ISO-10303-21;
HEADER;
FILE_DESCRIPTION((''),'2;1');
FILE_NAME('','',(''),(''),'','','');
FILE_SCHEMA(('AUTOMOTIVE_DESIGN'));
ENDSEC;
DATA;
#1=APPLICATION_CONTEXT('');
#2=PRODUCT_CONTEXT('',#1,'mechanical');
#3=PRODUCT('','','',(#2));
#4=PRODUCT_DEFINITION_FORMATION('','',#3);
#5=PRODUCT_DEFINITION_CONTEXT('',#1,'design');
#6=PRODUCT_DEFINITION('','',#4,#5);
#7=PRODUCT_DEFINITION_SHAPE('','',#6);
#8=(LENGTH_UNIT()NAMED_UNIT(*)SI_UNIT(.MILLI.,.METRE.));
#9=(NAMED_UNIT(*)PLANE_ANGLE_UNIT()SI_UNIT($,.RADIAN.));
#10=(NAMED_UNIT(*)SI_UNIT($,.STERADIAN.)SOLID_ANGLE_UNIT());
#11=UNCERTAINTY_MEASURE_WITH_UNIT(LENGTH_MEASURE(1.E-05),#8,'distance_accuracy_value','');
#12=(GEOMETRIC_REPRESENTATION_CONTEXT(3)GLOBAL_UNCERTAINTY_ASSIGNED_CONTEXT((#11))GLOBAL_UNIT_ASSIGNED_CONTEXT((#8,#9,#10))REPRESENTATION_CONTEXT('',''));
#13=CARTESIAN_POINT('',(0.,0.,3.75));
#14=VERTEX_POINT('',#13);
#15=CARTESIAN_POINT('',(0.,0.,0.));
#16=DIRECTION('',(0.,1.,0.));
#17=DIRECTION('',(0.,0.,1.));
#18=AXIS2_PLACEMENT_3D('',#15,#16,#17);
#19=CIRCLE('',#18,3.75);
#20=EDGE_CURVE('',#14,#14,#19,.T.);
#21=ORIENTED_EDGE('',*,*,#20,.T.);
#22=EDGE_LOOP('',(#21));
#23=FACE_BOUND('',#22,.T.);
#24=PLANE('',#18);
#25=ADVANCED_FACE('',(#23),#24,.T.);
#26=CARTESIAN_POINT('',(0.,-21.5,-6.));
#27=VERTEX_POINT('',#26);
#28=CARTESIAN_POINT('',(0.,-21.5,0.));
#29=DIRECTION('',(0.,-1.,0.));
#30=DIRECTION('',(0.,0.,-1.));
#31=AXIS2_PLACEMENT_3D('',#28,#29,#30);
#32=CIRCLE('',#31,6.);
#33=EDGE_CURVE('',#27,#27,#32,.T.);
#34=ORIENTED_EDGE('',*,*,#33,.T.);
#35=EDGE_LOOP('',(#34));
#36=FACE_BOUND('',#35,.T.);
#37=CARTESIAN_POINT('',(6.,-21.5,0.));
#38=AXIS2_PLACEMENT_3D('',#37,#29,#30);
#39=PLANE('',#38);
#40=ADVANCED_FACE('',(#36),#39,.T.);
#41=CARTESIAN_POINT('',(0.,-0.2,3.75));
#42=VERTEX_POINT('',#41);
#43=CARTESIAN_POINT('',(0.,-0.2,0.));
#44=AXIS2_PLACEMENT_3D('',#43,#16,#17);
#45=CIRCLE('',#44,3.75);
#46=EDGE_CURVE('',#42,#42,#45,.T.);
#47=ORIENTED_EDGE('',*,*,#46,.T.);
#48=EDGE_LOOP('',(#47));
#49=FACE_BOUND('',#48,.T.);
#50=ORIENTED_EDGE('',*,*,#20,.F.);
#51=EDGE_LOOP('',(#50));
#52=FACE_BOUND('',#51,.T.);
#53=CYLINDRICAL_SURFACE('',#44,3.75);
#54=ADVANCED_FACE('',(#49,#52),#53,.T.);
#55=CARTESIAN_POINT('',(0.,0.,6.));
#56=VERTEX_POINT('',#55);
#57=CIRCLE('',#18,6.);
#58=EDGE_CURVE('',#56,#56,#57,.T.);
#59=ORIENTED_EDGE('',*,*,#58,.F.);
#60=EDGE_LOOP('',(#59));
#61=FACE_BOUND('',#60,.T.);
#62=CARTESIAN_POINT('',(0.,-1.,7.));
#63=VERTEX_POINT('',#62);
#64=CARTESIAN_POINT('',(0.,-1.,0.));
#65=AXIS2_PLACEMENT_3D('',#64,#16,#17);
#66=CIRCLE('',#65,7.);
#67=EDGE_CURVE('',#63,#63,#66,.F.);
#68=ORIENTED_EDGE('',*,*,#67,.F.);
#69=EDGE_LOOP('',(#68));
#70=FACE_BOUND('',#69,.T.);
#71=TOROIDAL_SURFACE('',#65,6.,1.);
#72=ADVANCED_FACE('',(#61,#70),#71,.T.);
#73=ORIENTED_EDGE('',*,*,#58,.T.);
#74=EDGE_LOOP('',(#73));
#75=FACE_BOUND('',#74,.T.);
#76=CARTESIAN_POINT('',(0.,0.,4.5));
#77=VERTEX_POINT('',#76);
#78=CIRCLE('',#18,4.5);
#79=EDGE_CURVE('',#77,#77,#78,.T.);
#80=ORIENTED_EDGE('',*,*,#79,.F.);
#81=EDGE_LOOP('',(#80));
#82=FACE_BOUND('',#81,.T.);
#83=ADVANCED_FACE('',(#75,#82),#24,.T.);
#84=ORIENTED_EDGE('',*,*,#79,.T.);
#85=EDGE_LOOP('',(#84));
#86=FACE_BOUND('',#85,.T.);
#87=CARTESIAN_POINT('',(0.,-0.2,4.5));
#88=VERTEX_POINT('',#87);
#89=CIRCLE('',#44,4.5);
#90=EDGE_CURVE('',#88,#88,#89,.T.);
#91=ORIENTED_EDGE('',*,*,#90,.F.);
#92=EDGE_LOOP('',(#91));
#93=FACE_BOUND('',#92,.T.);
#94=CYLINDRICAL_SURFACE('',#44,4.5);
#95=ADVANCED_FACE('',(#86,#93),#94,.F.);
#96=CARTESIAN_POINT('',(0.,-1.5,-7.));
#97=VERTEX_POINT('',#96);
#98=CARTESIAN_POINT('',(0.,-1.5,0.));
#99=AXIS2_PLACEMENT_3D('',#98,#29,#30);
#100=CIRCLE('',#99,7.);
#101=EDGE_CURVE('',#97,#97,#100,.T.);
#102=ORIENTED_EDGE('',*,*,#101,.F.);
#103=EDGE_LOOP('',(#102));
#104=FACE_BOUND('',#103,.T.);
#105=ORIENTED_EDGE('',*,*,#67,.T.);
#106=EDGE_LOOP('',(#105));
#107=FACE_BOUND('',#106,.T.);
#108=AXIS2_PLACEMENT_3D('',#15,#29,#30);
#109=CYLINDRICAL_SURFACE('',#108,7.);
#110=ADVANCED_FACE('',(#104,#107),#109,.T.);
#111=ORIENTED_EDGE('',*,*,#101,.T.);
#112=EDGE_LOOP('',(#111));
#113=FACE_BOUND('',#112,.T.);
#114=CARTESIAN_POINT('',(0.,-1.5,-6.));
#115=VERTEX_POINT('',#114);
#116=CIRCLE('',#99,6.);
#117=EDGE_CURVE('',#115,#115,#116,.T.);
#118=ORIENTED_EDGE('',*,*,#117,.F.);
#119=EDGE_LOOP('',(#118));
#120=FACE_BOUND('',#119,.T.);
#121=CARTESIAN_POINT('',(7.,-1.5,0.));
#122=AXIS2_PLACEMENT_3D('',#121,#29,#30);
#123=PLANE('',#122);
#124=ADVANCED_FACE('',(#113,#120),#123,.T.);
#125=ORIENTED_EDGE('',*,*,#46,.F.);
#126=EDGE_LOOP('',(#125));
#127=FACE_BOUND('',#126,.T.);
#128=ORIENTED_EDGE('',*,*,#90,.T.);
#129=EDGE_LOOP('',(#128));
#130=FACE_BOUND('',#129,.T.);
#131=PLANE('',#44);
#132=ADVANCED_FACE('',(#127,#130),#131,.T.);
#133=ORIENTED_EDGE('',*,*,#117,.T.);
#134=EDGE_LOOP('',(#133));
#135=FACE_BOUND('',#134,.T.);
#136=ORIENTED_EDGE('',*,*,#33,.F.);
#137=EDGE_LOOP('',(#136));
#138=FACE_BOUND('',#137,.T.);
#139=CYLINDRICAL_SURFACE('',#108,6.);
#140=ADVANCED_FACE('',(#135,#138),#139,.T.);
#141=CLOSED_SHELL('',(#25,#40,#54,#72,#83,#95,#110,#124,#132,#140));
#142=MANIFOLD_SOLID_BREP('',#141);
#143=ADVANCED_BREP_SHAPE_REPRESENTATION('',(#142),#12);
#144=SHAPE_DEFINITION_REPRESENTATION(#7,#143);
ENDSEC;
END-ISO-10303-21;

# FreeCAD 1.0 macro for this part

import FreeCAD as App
import Part
import Sketcher
from FreeCAD import Vector
Q = App.Units.Quantity


def edges_at(feature, points):
    """Names of the edges that pass closest to the given points."""
    edges = feature.Shape.Edges
    near = lambda p: min(range(len(edges)), key=lambda i: edges[i].distToShape(Part.Vertex(*p))[0])
    return sorted({f"Edge{near(p) + 1}" for p in points})

doc = App.newDocument("Part")
body = doc.addObject("PartDesign::Body", "Body")

# Sketch on XY plane
sketch1 = body.newObject("Sketcher::SketchObject", "Sketch")
sketch1.AttachmentSupport = (doc.getObject("XY_Plane"), [""])
sketch1.MapMode = "FlatFace"
sketch1.addGeometry([
    Part.LineSegment(Vector(7, 0, 0), Vector(0, 0, 0)),  # 0
    Part.LineSegment(Vector(0, 0, 0), Vector(0, -21.5, 0)),  # 1
    Part.LineSegment(Vector(0, -21.5, 0), Vector(6, -21.5, 0)),  # 2
    Part.LineSegment(Vector(6, -21.5, 0), Vector(6, -1.5, 0)),  # 3
    Part.LineSegment(Vector(6, -1.5, 0), Vector(7, -1.5, 0)),  # 4
    Part.LineSegment(Vector(7, -1.5, 0), Vector(7, 0, 0)),  # 5
], False)
sketch1.addConstraint([
    Sketcher.Constraint("Coincident", 0, 2, 1, 1),
    Sketcher.Constraint("Coincident", 1, 2, 2, 1),
    Sketcher.Constraint("Coincident", 2, 2, 3, 1),
    Sketcher.Constraint("Coincident", 3, 2, 4, 1),
    Sketcher.Constraint("Coincident", 4, 2, 5, 1),
    Sketcher.Constraint("Coincident", 5, 2, 0, 1),
    Sketcher.Constraint("Horizontal", 0),
    Sketcher.Constraint("Vertical", 1),
    Sketcher.Constraint("Horizontal", 2),
    Sketcher.Constraint("Vertical", 3),
    Sketcher.Constraint("Horizontal", 4),
    Sketcher.Constraint("Vertical", 5),
    Sketcher.Constraint("Coincident", 0, 2, -1, 1),
    Sketcher.Constraint("DistanceX", 0, 2, 0, 1, Q("7 mm")),
    Sketcher.Constraint("DistanceX", 2, 1, 2, 2, Q("6 mm")),
    Sketcher.Constraint("DistanceY", 3, 1, 3, 2, Q("20 mm")),
    Sketcher.Constraint("DistanceY", 1, 2, 1, 1, Q("21.5 mm")),
])
revolution = body.newObject("PartDesign::Revolution", "Revolution")
revolution.Profile = sketch1
revolution.ReferenceAxis = (sketch1, ["V_Axis"])
revolution.Angle = 360
doc.recompute()

fillet = body.newObject("PartDesign::Fillet", "Fillet")
fillet.Base = (revolution, edges_at(revolution, [(0, 0, 7)]))
fillet.Radius = 1

# Sketch on XZ plane
sketch2 = body.newObject("Sketcher::SketchObject", "Sketch001")
sketch2.AttachmentSupport = (doc.getObject("XZ_Plane"), [""])
sketch2.MapMode = "FlatFace"
sketch2.addGeometry([
    Part.Circle(Vector(0, 0, 0), Vector(0, 0, 1), 4.5),
    Part.Circle(Vector(0, 0, 0), Vector(0, 0, 1), 3.75),
], False)
sketch2.addConstraint([
    Sketcher.Constraint("Coincident", 0, 3, -1, 1),
    Sketcher.Constraint("Coincident", 1, 3, -1, 1),
    Sketcher.Constraint("Diameter", 0, Q("9 mm")),
    Sketcher.Constraint("Diameter", 1, Q("7.5 mm")),
])
pocket1 = body.newObject("PartDesign::Pocket", "Pocket")
pocket1.Profile = sketch2
pocket1.Length = 0.2
pocket1.Reversed = True

doc.recompute()
